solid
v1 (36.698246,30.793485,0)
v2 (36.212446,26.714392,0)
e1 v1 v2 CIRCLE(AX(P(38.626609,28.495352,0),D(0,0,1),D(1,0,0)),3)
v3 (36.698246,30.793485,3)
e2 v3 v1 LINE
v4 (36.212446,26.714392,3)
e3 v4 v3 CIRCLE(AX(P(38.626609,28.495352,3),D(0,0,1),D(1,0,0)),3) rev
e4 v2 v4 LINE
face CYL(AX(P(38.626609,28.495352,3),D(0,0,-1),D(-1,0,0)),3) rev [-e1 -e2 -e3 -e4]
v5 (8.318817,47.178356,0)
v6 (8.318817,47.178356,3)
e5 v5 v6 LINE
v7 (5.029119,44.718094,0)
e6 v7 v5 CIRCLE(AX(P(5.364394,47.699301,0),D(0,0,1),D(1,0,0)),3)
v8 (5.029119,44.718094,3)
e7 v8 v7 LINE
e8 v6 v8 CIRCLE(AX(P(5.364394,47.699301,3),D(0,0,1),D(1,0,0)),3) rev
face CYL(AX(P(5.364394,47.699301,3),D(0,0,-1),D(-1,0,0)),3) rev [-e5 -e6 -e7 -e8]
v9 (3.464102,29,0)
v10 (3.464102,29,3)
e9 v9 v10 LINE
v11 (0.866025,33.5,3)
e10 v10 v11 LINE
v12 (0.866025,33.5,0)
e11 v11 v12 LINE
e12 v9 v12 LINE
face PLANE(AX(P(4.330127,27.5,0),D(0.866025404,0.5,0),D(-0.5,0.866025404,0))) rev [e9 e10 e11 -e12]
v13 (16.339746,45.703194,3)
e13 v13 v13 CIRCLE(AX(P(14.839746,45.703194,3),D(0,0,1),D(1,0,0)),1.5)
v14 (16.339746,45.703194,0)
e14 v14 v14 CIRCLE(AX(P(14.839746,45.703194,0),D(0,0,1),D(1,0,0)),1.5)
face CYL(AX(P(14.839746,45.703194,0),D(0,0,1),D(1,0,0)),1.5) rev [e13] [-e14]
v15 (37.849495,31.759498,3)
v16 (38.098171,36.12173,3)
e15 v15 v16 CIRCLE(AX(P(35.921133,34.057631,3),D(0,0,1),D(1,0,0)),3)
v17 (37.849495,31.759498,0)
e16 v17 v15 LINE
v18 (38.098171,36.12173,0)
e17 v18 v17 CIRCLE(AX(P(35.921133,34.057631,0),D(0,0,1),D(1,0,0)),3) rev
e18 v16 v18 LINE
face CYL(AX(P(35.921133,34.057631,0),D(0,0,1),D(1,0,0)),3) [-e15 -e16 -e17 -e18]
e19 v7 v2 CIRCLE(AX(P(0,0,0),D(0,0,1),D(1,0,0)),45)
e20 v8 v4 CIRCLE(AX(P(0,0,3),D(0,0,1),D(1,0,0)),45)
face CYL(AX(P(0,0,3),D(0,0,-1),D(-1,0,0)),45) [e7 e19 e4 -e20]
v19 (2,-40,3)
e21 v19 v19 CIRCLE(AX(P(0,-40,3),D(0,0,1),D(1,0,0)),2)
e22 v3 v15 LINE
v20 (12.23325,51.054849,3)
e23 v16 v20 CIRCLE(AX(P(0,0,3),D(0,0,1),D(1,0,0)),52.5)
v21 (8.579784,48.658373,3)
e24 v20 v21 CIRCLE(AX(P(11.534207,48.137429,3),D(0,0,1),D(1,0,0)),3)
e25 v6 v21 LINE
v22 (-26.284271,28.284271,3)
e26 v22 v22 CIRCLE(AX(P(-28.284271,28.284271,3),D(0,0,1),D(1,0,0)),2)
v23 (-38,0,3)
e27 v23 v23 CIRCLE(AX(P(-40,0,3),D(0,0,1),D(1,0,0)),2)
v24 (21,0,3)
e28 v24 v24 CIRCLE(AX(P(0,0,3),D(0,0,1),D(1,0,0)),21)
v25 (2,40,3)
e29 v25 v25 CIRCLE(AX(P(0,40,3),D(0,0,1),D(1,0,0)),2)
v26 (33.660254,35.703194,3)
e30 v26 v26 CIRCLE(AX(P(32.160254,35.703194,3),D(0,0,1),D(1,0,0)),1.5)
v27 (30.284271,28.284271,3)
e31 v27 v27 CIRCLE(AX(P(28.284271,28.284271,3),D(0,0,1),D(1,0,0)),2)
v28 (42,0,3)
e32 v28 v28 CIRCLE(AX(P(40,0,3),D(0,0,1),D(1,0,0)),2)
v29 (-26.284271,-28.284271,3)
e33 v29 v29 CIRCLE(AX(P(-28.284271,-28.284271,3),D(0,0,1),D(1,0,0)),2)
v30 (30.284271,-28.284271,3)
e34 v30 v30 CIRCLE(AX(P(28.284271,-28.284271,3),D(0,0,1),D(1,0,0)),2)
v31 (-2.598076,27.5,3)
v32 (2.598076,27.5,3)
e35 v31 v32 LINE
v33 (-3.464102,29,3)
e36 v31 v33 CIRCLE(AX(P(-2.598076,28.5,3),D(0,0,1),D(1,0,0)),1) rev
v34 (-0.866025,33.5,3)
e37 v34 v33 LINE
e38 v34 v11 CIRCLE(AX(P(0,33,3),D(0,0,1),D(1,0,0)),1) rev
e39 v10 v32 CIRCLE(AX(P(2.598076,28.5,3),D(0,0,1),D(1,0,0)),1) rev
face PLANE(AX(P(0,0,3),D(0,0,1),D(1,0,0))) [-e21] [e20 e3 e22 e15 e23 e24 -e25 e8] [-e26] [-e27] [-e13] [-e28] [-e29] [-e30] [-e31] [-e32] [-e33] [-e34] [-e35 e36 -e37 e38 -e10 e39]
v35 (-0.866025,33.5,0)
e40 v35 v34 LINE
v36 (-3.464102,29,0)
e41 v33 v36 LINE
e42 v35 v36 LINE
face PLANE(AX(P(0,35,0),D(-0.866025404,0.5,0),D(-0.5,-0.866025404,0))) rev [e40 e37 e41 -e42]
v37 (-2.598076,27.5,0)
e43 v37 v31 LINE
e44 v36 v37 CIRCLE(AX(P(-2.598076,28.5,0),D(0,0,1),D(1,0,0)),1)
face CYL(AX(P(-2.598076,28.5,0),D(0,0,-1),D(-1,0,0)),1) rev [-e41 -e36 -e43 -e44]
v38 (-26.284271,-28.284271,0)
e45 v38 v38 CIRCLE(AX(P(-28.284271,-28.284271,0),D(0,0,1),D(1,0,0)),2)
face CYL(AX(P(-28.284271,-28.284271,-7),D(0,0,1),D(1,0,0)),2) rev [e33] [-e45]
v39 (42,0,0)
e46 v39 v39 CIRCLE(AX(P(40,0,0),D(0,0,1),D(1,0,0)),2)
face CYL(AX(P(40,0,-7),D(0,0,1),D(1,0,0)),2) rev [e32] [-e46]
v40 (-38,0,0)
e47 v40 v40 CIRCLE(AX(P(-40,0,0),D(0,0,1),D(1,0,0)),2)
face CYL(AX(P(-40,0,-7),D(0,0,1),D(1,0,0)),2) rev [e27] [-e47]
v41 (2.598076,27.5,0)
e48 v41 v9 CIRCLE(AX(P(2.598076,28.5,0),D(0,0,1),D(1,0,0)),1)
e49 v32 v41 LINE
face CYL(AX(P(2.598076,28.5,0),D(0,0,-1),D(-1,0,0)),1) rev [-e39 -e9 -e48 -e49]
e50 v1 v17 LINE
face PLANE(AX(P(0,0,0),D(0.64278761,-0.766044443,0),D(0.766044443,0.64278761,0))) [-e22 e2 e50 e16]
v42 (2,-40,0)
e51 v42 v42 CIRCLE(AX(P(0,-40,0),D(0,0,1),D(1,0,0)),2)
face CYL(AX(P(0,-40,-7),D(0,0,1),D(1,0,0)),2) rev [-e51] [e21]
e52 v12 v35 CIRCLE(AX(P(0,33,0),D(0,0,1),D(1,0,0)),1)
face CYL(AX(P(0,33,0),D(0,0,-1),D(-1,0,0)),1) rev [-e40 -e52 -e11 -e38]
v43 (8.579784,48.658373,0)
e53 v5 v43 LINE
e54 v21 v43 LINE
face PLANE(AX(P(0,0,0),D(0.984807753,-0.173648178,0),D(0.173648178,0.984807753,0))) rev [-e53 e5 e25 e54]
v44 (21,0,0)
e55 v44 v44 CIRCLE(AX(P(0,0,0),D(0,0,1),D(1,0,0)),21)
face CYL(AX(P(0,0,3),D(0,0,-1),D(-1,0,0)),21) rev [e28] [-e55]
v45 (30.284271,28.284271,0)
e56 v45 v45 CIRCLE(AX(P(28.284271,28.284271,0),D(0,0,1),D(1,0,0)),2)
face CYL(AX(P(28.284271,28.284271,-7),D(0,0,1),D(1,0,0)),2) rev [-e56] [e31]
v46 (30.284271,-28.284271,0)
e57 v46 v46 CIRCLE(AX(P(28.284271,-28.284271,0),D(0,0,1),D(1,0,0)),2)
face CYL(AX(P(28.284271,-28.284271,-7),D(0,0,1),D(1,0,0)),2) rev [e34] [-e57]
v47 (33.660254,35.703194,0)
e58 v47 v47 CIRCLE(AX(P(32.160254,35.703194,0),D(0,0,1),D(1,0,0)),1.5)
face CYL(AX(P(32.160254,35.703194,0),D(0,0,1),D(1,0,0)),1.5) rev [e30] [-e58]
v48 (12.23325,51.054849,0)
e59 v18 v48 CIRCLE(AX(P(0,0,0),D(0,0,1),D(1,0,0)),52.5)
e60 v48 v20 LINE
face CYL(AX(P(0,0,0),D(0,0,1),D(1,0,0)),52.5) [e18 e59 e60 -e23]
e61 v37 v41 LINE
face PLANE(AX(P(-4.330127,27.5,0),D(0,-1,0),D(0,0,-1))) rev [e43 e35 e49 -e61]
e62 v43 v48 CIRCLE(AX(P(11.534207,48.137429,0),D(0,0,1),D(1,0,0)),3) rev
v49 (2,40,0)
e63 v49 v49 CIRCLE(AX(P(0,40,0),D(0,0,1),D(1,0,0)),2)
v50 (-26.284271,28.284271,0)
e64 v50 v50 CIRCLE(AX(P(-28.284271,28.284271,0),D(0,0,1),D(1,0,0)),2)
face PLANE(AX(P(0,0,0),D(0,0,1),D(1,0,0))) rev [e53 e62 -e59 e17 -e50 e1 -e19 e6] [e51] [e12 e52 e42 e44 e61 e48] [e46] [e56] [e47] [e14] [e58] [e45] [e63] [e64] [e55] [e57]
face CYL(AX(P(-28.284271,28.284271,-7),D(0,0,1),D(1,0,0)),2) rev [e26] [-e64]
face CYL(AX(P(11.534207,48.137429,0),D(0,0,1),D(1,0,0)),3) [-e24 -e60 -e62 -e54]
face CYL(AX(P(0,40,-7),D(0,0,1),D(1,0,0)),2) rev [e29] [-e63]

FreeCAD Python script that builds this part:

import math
import FreeCAD as App
import Part
import Sketcher
Q = App.Units.Quantity


def edges_at(feature, points):
    """Names of the edges that pass closest to the given points."""
    edges = feature.Shape.Edges
    near = lambda p: min(range(len(edges)), key=lambda i: edges[i].distToShape(Part.Vertex(*p))[0])
    return sorted({f"Edge{near(p) + 1}" for p in points})

doc = App.newDocument("Part")
body = doc.addObject("PartDesign::Body", "Body")

sketch1 = body.newObject("Sketcher::SketchObject", "Sketch")
sketch1.AttachmentSupport = (doc.getObject("XY_Plane"), [""])
sketch1.MapMode = "FlatFace"
sketch1.addGeometry([
    Part.Circle(App.Vector(0, 0, 0), App.Vector(0, 0, 1), 45),
    Part.Circle(App.Vector(0, 0, 0), App.Vector(0, 0, 1), 21),
], False)
sketch1.addConstraint([
    Sketcher.Constraint("Coincident", 0, 3, -1, 1),
    Sketcher.Constraint("Coincident", 1, 3, -1, 1),
    Sketcher.Constraint("Diameter", 0, 90.0),
    Sketcher.Constraint("Diameter", 1, 42.0),
])
pad1 = body.newObject("PartDesign::Pad", "Pad")
pad1.Profile = sketch1
pad1.Length = 3

sketch2 = body.newObject("Sketcher::SketchObject", "Sketch001")
sketch2.AttachmentSupport = (doc.getObject("XY_Plane"), [""])
sketch2.MapMode = "FlatFace"
sketch2.AttachmentOffset = App.Placement(App.Vector(0, 0, 3), App.Rotation())
sketch2.addGeometry([
    Part.Circle(App.Vector(0, 40, 0), App.Vector(0, 0, 1), 2),
    Part.Circle(App.Vector(28.3, 28.3, 0), App.Vector(0, 0, 1), 2),
    Part.Circle(App.Vector(40, 0, 0), App.Vector(0, 0, 1), 2),
    Part.Circle(App.Vector(28.3, -28.3, 0), App.Vector(0, 0, 1), 2),
    Part.Circle(App.Vector(0, -40, 0), App.Vector(0, 0, 1), 2),
    Part.Circle(App.Vector(-28.3, -28.3, 0), App.Vector(0, 0, 1), 2),
    Part.Circle(App.Vector(-40, 0, 0), App.Vector(0, 0, 1), 2),
    Part.Circle(App.Vector(-28.3, 28.3, 0), App.Vector(0, 0, 1), 2),
], False)
sketch2.addConstraint([
    Sketcher.Constraint("Equal", 0, 1),
    Sketcher.Constraint("Equal", 1, 2),
    Sketcher.Constraint("Equal", 2, 3),
    Sketcher.Constraint("Equal", 3, 4),
    Sketcher.Constraint("Equal", 4, 5),
    Sketcher.Constraint("Equal", 5, 6),
    Sketcher.Constraint("Equal", 6, 7),
    Sketcher.Constraint("Symmetric", 0, 3, 4, 3, -1, 1),
    Sketcher.Constraint("Symmetric", 1, 3, 5, 3, -1, 1),
    Sketcher.Constraint("Symmetric", 2, 3, 6, 3, -1, 1),
    Sketcher.Constraint("Symmetric", 3, 3, 7, 3, -1, 1),
    Sketcher.Constraint("Symmetric", 3, 3, 5, 3, -2),
    Sketcher.Constraint("PointOnObject", 0, 3, -2),
    Sketcher.Constraint("PointOnObject", 2, 3, -1),
    Sketcher.Constraint("Diameter", 0, 4.0),
    Sketcher.Constraint("DistanceY", -1, 1, 0, 3, 40.0),
    Sketcher.Constraint("DistanceX", -1, 1, 2, 3, 40.0),
    Sketcher.Constraint("DistanceX", -1, 1, 1, 3, 28.284271),
    Sketcher.Constraint("DistanceY", -1, 1, 1, 3, 28.284271),
])
pocket1 = body.newObject("PartDesign::Pocket", "Pocket")
pocket1.Profile = sketch2
pocket1.Length = 10

sketch3 = body.newObject("Sketcher::SketchObject", "Sketch002")
sketch3.AttachmentSupport = (doc.getObject("XY_Plane"), [""])
sketch3.MapMode = "FlatFace"
sketch3.AttachmentOffset = App.Placement(App.Vector(0, 0, 3), App.Rotation())
sketch3.addGeometry([
    Part.LineSegment(App.Vector(4, 28, 0), App.Vector(0, 35, 0)),
    Part.LineSegment(App.Vector(0, 35, 0), App.Vector(-4, 28, 0)),
    Part.LineSegment(App.Vector(-4, 28, 0), App.Vector(4, 28, 0)),
], False)
sketch3.addConstraint([
    Sketcher.Constraint("Coincident", 0, 2, 1, 1),
    Sketcher.Constraint("Coincident", 1, 2, 2, 1),
    Sketcher.Constraint("Coincident", 2, 2, 0, 1),
    Sketcher.Constraint("Horizontal", 2),
    Sketcher.Constraint("PointOnObject", 0, 2, -2),
    Sketcher.Constraint("Equal", 0, 1),
    Sketcher.Constraint("Angle", 0, Q("120 deg")),
    Sketcher.Constraint("DistanceY", -1, 1, 0, 2, 35.0),
    Sketcher.Constraint("DistanceY", -1, 1, 1, 2, 27.5),
])
pocket2 = body.newObject("PartDesign::Pocket", "Pocket001")
pocket2.Profile = sketch3
pocket2.Length = 3

sketch4 = body.newObject("Sketcher::SketchObject", "Sketch003")
sketch4.AttachmentSupport = (doc.getObject("XY_Plane"), [""])
sketch4.MapMode = "FlatFace"
sketch4.addGeometry([
    Part.LineSegment(App.Vector(9.1, 51.7, 0), App.Vector(7.8, 44.3, 0)),
    Part.ArcOfCircle(Part.Circle(App.Vector(0, 0, 0), App.Vector(0, 0, 1), 45), math.radians(40), math.radians(80)),
    Part.LineSegment(App.Vector(34.5, 28.9, 0), App.Vector(40.2, 33.7, 0)),
    Part.ArcOfCircle(Part.Circle(App.Vector(0, 0, 0), App.Vector(0, 0, 1), 52.5), math.radians(40), math.radians(80)),
    Part.Circle(App.Vector(32.2, 35.7, 0), App.Vector(0, 0, 1), 1.5),
    Part.Circle(App.Vector(14.8, 45.7, 0), App.Vector(0, 0, 1), 1.5),
], False)
sketch4.addConstraint([
    Sketcher.Constraint("Coincident", 0, 2, 1, 2),
    Sketcher.Constraint("Coincident", 1, 1, 2, 1),
    Sketcher.Constraint("Coincident", 2, 2, 3, 1),
    Sketcher.Constraint("Coincident", 3, 2, 0, 1),
    Sketcher.Constraint("Coincident", 1, 3, -1, 1),
    Sketcher.Constraint("Coincident", 3, 3, -1, 1),
    Sketcher.Constraint("Equal", 4, 5),
    Sketcher.Constraint("Diameter", 4, 3.0),
    Sketcher.Constraint("Radius", 1, 45.0),
    Sketcher.Constraint("Radius", 3, 52.5),
    Sketcher.Constraint("Angle", 0, Q("-100 deg")),
    Sketcher.Constraint("Angle", 2, Q("40 deg")),
    Sketcher.Constraint("DistanceY", 4, 3, 5, 3, 10.0),
    Sketcher.Constraint("DistanceY", 2, 2, 0, 2, 10.569999),
    Sketcher.Constraint("DistanceX", -1, 1, 1, 1, 34.472),
    Sketcher.Constraint("DistanceX", 5, 3, 4, 3, 17.320508),
    Sketcher.Constraint("DistanceY", 1, 1, 4, 3, 6.777752),
    Sketcher.Constraint("DistanceX", 4, 3, 2, 2, 8.057079),
])
pad2 = body.newObject("PartDesign::Pad", "Pad001")
pad2.Profile = sketch4
pad2.Length = 3
doc.recompute()

fillet = body.newObject("PartDesign::Fillet", "Fillet")
fillet.Base = (pad2, edges_at(pad2, [(4.33, 27.5, 1.5), (-4.33, 27.5, 1.5), (0, 35, 1.5)]))
fillet.Radius = 1
doc.recompute()

fillet2 = body.newObject("PartDesign::Fillet", "Fillet001")
fillet2.Base = (fillet, edges_at(fillet, [
    (40.217, 33.746, 1.5),
    (34.472, 28.925, 1.5),
    (7.814, 44.316, 1.5),
    (9.117, 51.702, 1.5),
]))
fillet2.Radius = 3

doc.recompute()
